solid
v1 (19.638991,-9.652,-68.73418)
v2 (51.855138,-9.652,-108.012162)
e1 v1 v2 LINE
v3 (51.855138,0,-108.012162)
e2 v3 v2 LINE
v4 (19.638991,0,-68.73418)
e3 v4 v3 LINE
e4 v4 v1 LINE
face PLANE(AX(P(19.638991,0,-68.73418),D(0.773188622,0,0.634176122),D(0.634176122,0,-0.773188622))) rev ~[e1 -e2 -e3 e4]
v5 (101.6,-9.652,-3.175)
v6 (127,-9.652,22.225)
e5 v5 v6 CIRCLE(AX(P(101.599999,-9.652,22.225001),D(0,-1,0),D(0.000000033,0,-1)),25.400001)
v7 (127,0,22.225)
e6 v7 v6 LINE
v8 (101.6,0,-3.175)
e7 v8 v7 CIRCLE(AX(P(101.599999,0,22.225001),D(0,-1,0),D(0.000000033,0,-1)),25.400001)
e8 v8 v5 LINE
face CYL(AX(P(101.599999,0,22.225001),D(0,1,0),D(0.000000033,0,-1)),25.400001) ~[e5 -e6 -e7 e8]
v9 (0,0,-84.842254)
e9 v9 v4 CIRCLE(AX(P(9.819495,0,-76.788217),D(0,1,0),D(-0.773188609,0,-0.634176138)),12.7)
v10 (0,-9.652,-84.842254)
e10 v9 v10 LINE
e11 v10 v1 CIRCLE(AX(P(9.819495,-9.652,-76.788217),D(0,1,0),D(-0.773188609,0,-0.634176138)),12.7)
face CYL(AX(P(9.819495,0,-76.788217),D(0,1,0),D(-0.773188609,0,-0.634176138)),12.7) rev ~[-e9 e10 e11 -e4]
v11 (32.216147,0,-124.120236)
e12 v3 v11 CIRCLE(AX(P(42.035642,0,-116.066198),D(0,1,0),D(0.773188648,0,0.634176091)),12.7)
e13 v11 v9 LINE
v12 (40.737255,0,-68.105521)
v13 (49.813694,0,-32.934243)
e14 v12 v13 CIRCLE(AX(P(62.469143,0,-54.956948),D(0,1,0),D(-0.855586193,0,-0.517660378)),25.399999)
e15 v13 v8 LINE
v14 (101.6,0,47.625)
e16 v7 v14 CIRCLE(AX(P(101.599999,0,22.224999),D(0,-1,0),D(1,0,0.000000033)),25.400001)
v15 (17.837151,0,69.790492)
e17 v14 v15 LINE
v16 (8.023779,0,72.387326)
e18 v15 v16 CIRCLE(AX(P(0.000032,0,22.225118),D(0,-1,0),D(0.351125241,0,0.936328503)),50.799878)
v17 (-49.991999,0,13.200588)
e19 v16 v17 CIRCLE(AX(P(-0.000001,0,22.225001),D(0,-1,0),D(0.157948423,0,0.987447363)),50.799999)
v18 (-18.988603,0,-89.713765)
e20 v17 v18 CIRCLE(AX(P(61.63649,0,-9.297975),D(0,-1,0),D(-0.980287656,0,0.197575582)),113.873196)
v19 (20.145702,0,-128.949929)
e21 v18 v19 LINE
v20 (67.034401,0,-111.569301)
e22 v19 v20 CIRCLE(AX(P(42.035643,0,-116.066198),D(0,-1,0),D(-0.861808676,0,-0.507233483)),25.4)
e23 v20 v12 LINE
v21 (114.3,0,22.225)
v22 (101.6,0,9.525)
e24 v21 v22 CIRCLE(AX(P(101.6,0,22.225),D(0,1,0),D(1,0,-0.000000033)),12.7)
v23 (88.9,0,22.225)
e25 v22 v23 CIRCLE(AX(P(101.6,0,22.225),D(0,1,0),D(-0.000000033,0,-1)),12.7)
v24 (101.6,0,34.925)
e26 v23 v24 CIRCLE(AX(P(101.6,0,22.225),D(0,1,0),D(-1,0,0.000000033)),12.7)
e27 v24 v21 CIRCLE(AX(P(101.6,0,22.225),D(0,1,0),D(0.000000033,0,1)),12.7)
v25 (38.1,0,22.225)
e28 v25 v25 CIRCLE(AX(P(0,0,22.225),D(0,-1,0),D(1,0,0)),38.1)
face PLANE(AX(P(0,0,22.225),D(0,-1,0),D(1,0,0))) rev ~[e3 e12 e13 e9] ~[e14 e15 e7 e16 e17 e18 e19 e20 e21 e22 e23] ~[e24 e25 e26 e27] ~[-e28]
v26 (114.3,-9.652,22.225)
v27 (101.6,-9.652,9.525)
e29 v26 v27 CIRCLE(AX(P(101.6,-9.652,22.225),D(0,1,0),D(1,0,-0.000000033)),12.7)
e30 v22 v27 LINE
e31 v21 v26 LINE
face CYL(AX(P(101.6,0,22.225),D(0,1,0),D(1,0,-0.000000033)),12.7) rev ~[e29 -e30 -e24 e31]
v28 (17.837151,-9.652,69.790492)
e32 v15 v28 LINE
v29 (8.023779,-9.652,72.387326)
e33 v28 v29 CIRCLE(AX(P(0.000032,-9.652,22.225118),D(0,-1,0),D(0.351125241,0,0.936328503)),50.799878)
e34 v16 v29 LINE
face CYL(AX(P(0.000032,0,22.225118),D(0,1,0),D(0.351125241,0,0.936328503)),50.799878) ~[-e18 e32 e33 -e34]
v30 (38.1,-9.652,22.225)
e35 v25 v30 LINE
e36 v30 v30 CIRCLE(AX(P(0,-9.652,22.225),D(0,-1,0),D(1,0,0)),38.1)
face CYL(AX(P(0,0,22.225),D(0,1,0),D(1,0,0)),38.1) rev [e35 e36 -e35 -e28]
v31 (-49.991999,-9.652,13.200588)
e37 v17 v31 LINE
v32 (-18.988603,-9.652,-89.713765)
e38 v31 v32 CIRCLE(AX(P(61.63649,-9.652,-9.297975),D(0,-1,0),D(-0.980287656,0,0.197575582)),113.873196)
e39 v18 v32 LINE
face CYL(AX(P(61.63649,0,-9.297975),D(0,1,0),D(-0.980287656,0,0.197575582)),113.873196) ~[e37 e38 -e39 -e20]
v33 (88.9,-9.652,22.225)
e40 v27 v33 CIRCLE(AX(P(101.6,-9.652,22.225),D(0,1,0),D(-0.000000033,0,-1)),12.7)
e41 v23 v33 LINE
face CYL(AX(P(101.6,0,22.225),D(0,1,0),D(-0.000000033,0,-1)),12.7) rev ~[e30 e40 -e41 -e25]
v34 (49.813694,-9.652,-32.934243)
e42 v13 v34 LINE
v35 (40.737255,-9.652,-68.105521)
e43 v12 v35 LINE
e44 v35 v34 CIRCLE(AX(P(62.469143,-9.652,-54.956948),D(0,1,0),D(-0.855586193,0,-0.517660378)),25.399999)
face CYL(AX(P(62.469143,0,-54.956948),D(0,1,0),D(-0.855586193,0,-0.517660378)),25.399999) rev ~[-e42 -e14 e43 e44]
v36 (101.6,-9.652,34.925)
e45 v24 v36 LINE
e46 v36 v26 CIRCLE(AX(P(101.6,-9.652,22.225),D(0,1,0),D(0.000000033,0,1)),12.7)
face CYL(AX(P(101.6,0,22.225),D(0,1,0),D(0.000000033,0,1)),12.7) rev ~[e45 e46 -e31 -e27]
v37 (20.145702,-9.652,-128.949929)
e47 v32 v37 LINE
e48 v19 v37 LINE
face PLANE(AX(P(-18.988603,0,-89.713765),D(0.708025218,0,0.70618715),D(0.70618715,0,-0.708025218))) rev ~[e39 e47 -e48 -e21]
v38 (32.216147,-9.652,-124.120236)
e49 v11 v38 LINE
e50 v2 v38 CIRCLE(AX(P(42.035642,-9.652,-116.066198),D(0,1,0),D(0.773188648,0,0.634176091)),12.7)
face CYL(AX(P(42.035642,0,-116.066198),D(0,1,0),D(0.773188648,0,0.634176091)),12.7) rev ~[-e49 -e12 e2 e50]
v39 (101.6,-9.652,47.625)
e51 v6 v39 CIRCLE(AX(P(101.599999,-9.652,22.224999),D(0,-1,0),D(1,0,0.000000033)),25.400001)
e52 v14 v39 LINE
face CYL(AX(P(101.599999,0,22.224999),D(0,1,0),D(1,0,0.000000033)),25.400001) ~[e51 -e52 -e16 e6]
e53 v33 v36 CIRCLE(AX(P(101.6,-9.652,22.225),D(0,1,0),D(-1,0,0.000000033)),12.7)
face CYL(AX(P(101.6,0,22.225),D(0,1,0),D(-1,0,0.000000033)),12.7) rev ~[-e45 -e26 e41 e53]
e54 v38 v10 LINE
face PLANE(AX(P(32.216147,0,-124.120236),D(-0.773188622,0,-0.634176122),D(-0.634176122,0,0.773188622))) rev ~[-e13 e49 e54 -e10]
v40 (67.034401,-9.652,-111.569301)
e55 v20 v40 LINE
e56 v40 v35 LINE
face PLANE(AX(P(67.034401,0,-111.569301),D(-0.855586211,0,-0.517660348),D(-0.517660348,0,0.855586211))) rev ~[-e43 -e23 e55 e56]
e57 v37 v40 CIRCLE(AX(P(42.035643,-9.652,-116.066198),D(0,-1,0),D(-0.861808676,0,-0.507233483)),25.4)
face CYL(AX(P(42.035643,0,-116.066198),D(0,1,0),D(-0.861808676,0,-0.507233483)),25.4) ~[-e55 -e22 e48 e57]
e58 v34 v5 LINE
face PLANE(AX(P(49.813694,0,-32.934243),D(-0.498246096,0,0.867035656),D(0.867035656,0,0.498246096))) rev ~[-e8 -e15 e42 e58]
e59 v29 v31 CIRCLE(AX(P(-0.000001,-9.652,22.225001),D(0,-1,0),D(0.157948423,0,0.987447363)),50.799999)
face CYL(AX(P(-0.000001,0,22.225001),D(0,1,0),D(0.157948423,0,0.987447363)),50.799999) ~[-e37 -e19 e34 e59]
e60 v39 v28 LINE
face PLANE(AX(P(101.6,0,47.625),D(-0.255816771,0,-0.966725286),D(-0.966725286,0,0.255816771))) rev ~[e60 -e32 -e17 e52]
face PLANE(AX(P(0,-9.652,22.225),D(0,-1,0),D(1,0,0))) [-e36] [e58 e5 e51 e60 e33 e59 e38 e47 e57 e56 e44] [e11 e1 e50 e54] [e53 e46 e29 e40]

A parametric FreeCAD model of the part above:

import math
import FreeCAD as App
import Part
import Sketcher
Q = App.Units.Quantity

doc = App.newDocument("Part")
params = doc.addObject("Spreadsheet::Sheet", "Params")
for row, (alias, value) in enumerate([
    ("sketch1_diameter", "3 in"),
    ("sketch1_radius", "1 in"),
    ("sketch1_radius2", "2 in"),
    ("sketch1_radius3", "0.5 in"),
    ("sketch1_length", "2 in"),
    ("pad1_length", "0.38 in"),
], start=1):
    params.set(f"A{row}", alias)
    params.set(f"B{row}", "=" + value)
    params.setAlias(f"B{row}", alias)

body = doc.addObject("PartDesign::Body", "Body")

# Sketch on XZ plane
sketch1 = doc.addObject("Sketcher::SketchObject", "Sketch")
body.addObject(sketch1)
sketch1.AttachmentSupport = (doc.XZ_Plane, [""])
sketch1.MapMode = "FlatFace"
sketch1.addGeometry([
    Part.ArcOfCircle(Part.Circle(App.Vector(102, 22, 0), App.Vector(0, 0, 1), 25), math.radians(0), math.radians(90)),  # 0
    Part.LineSegment(App.Vector(102, 48, 0), App.Vector(18, 70, 0)),  # 1
    Part.ArcOfCircle(Part.Circle(App.Vector(0, 22, 0), App.Vector(0, 0, 1), 51), math.radians(69.44), math.radians(80.91)),  # 2
    Part.ArcOfCircle(Part.Circle(App.Vector(0, 22, 0), App.Vector(0, 0, 1), 51), math.radians(81), math.radians(190)),  # 3
    Part.ArcOfCircle(Part.Circle(App.Vector(62, -9, 0), App.Vector(0, 0, 1), 114), math.radians(169), math.radians(225)),  # 4
    Part.LineSegment(App.Vector(-19, -90, 0), App.Vector(20, -129, 0)),  # 5
    Part.ArcOfCircle(Part.Circle(App.Vector(42, -116, 0), App.Vector(0, 0, 1), 25), math.radians(-150), math.radians(10)),  # 6
    Part.LineSegment(App.Vector(67, -112, 0), App.Vector(41, -68, 0)),  # 7
    Part.ArcOfCircle(Part.Circle(App.Vector(62, -55, 0), App.Vector(0, 0, 1), 25), math.radians(120), math.radians(211)),  # 8
    Part.LineSegment(App.Vector(50, -33, 0), App.Vector(102, -3, 0)),  # 9
    Part.ArcOfCircle(Part.Circle(App.Vector(102, 22, 0), App.Vector(0, 0, 1), 25), math.radians(-90), math.radians(0)),  # 10
    Part.ArcOfCircle(Part.Circle(App.Vector(102, 22, 0), App.Vector(0, 0, 1), 13), math.radians(90), math.radians(180)),  # 11
    Part.ArcOfCircle(Part.Circle(App.Vector(102, 22, 0), App.Vector(0, 0, 1), 13), math.radians(0), math.radians(90)),  # 12
    Part.ArcOfCircle(Part.Circle(App.Vector(102, 22, 0), App.Vector(0, 0, 1), 13), math.radians(-90), math.radians(0)),  # 13
    Part.ArcOfCircle(Part.Circle(App.Vector(102, 22, 0), App.Vector(0, 0, 1), 13), math.radians(-180), math.radians(-90)),  # 14
    Part.ArcOfCircle(Part.Circle(App.Vector(10, -77, 0), App.Vector(0, 0, 1), 13), math.radians(39), math.radians(219)),  # 15
    Part.LineSegment(App.Vector(20, -69, 0), App.Vector(52, -108, 0)),  # 16
    Part.ArcOfCircle(Part.Circle(App.Vector(42, -116, 0), App.Vector(0, 0, 1), 13), math.radians(-141), math.radians(39)),  # 17
    Part.LineSegment(App.Vector(32, -124, 0), App.Vector(0, -85, 0)),  # 18
    Part.Circle(App.Vector(0, 22, 0), App.Vector(0, 0, 1), 38),  # 19
], False)
sketch1.addConstraint([
    Sketcher.Constraint("Coincident", 0, 2, 1, 1),
    Sketcher.Constraint("Coincident", 1, 2, 2, 1),
    Sketcher.Constraint("Tangent", 2, 2, 3, 1),
    Sketcher.Constraint("Coincident", 3, 2, 4, 1),
    Sketcher.Constraint("Tangent", 4, 2, 5, 1),
    Sketcher.Constraint("Coincident", 5, 2, 6, 1),
    Sketcher.Constraint("Coincident", 6, 2, 7, 1),
    Sketcher.Constraint("Tangent", 7, 2, 8, 2),
    Sketcher.Constraint("Tangent", 8, 1, 9, 1),
    Sketcher.Constraint("Coincident", 9, 2, 10, 1),
    Sketcher.Constraint("Tangent", 10, 2, 0, 1),
    Sketcher.Constraint("Tangent", 11, 1, 12, 2),
    Sketcher.Constraint("Tangent", 12, 1, 13, 2),
    Sketcher.Constraint("Tangent", 13, 1, 14, 2),
    Sketcher.Constraint("Tangent", 14, 1, 11, 2),
    Sketcher.Constraint("Tangent", 15, 1, 16, 1),
    Sketcher.Constraint("Tangent", 16, 2, 17, 2),
    Sketcher.Constraint("Tangent", 17, 1, 18, 1),
    Sketcher.Constraint("Tangent", 18, 2, 15, 2),
    Sketcher.Constraint("Coincident", 11, 3, 0, 3),
    Sketcher.Constraint("Coincident", 17, 3, 6, 3),
    Sketcher.Constraint("Coincident", 19, 3, 3, 3),
    Sketcher.Constraint("Equal", 0, 6),
    Sketcher.Constraint("Equal", 6, 8),
    Sketcher.Constraint("Equal", 6, 10),
    Sketcher.Constraint("Equal", 11, 12),
    Sketcher.Constraint("Equal", 14, 15),
    Sketcher.Constraint("Equal", 15, 17),
    Sketcher.Constraint("PointOnObject", 3, 3, -2),
    Sketcher.Constraint("PointOnObject", 18, 2, -2),
    Sketcher.Constraint("Horizontal", 0, 3, 3, 3),
    Sketcher.Constraint("Horizontal", 19, 3, 10, 2),
    Sketcher.Constraint("Horizontal", 10, 2, 12, 1),
    Sketcher.Constraint("Horizontal", 12, 1, 14, 1),
    Sketcher.Constraint("Vertical", 14, 3, 0, 2),
    Sketcher.Constraint("Vertical", 0, 2, 9, 2),
    Sketcher.Constraint("Vertical", 9, 2, 11, 1),
    Sketcher.Constraint("Vertical", 11, 1, 13, 1),
    Sketcher.Constraint("Equal", 7, 16),
    Sketcher.Constraint("Diameter", 19, Q("3 in")),
    Sketcher.Constraint("Radius", 0, Q("1 in")),
    Sketcher.Constraint("Radius", 3, Q("2 in")),
    Sketcher.Constraint("Radius", 11, Q("0.5 in")),
    Sketcher.Constraint("Distance", 7, Q("2 in")),
    Sketcher.Constraint("DistanceX", -1, 1, 0, 3, Q("4 in")),
    Sketcher.Constraint("DistanceY", -1, 1, 0, 3, Q("0.875 in")),
    Sketcher.Constraint("Radius", 2, 50.799878),
    Sketcher.Constraint("Radius", 4, 113.873196),
    Sketcher.Constraint("Distance", 9, 59.728),
    Sketcher.Constraint("DistanceY", 6, 3, -1, 1, 116.066198),
    Sketcher.Constraint("DistanceX", 3, 2, -1, 1, 49.991999),
    Sketcher.Constraint("DistanceX", -1, 1, 5, 2, 20.145702),
    Sketcher.Constraint("DistanceX", -1, 1, 6, 2, 67.034401),
    Sketcher.Constraint("DistanceY", 6, 2, -1, 1, 111.569301),
    Sketcher.Constraint("DistanceX", 4, 2, 15, 3, 28.808098),
    Sketcher.Constraint("Distance", 1, 86.645969),
    Sketcher.Constraint("DistanceX", -1, 1, 2, 2, 8.023779),
])
sketch1.setExpression("Constraints[39]", "Params.sketch1_diameter")
sketch1.setExpression("Constraints[40]", "Params.sketch1_radius")
sketch1.setExpression("Constraints[41]", "Params.sketch1_radius2")
sketch1.setExpression("Constraints[42]", "Params.sketch1_radius3")
sketch1.setExpression("Constraints[43]", "Params.sketch1_length")
pad1 = doc.addObject("PartDesign::Pad", "Pad")
body.addObject(pad1)
pad1.Profile = sketch1
pad1.setExpression("Length", "Params.pad1_length")

doc.recompute()
